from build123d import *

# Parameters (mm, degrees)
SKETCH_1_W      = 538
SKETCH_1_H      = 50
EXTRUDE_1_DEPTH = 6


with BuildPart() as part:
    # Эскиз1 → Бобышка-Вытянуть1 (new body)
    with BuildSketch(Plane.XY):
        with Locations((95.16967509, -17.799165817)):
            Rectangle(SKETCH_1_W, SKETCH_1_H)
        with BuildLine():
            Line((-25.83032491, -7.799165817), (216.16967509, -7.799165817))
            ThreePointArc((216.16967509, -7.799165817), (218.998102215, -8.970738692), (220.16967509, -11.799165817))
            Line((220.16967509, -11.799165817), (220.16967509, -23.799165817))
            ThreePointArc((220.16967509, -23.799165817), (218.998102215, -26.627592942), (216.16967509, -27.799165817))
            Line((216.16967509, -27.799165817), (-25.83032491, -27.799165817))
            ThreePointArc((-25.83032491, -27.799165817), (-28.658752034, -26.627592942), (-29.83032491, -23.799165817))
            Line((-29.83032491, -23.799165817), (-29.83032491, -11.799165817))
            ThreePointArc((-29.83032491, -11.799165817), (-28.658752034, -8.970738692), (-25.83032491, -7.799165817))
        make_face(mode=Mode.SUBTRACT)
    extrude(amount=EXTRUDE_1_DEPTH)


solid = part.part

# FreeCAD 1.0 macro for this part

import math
import FreeCAD as App
import Part
import Sketcher
from FreeCAD import Vector

doc = App.newDocument("Part")
body = doc.addObject("PartDesign::Body", "Body")

# Sketch on XY plane
sketch1 = body.newObject("Sketcher::SketchObject", "Sketch")
sketch1.AttachmentSupport = (doc.getObject("XY_Plane"), [""])
sketch1.MapMode = "FlatFace"
sketch1.addGeometry([
    Part.LineSegment(Vector(-173.830325, 7.200834, 0), Vector(-173.830325, -42.799166, 0)),  # 0
    Part.LineSegment(Vector(-173.830325, -42.799166, 0), Vector(364.169675, -42.799166, 0)),  # 1
    Part.LineSegment(Vector(364.169675, -42.799166, 0), Vector(364.169675, 7.200834, 0)),  # 2
    Part.LineSegment(Vector(364.169675, 7.200834, 0), Vector(-173.830325, 7.200834, 0)),  # 3
    Part.ArcOfCircle(Part.Circle(Vector(-25.830325, -11.799166, 0), Vector(0, 0, 1), 4), math.radians(90), math.radians(180)),  # 4
    Part.LineSegment(Vector(-25.830325, -7.799166, 0), Vector(216.169675, -7.799166, 0)),  # 5
    Part.ArcOfCircle(Part.Circle(Vector(216.169675, -11.799166, 0), Vector(0, 0, 1), 4), math.radians(0), math.radians(90)),  # 6
    Part.LineSegment(Vector(220.169675, -11.799166, 0), Vector(220.169675, -23.799166, 0)),  # 7
    Part.ArcOfCircle(Part.Circle(Vector(216.169675, -23.799166, 0), Vector(0, 0, 1), 4), math.radians(-90), math.radians(0)),  # 8
    Part.LineSegment(Vector(216.169675, -27.799166, 0), Vector(-25.830325, -27.799166, 0)),  # 9
    Part.ArcOfCircle(Part.Circle(Vector(-25.830325, -23.799166, 0), Vector(0, 0, 1), 4), math.radians(-180), math.radians(-90)),  # 10
    Part.LineSegment(Vector(-29.830325, -23.799166, 0), Vector(-29.830325, -11.799166, 0)),  # 11
], False)
sketch1.addConstraint([
    Sketcher.Constraint("Coincident", 0, 2, 1, 1),
    Sketcher.Constraint("Coincident", 1, 2, 2, 1),
    Sketcher.Constraint("Coincident", 2, 2, 3, 1),
    Sketcher.Constraint("Coincident", 3, 2, 0, 1),
    Sketcher.Constraint("Tangent", 4, 1, 5, 1),
    Sketcher.Constraint("Tangent", 5, 2, 6, 2),
    Sketcher.Constraint("Tangent", 6, 1, 7, 1),
    Sketcher.Constraint("Tangent", 7, 2, 8, 2),
    Sketcher.Constraint("Tangent", 8, 1, 9, 1),
    Sketcher.Constraint("Tangent", 9, 2, 10, 2),
    Sketcher.Constraint("Tangent", 10, 1, 11, 1),
    Sketcher.Constraint("Tangent", 11, 2, 4, 2),
    Sketcher.Constraint("Vertical", 0),
    Sketcher.Constraint("Horizontal", 1),
    Sketcher.Constraint("Vertical", 2),
    Sketcher.Constraint("Horizontal", 3),
    Sketcher.Constraint("Horizontal", 5),
    Sketcher.Constraint("Vertical", 7),
    Sketcher.Constraint("Horizontal", 9),
    Sketcher.Constraint("Vertical", 11),
    Sketcher.Constraint("Equal", 4, 6),
    Sketcher.Constraint("Equal", 6, 8),
    Sketcher.Constraint("Equal", 8, 10),
    Sketcher.Constraint("Radius", 4, 4.0),
    Sketcher.Constraint("DistanceX", 1, 1, 1, 2, 538.0),
    Sketcher.Constraint("DistanceX", 5, 1, 5, 2, 242.0),
    Sketcher.Constraint("DistanceY", 0, 2, 0, 1, 50.0),
    Sketcher.Constraint("DistanceY", 7, 2, 7, 1, 12.0),
    Sketcher.Constraint("DistanceX", 0, 2, 10, 3, 148.0),
    Sketcher.Constraint("DistanceY", 0, 2, 10, 3, 19.0),
    Sketcher.Constraint("DistanceX", 4, 3, -1, 1, 25.830325),
    Sketcher.Constraint("DistanceY", 4, 3, -1, 1, 11.799166),
])
pad1 = body.newObject("PartDesign::Pad", "Pad")
pad1.Profile = sketch1
pad1.Length = 6

doc.recompute()
